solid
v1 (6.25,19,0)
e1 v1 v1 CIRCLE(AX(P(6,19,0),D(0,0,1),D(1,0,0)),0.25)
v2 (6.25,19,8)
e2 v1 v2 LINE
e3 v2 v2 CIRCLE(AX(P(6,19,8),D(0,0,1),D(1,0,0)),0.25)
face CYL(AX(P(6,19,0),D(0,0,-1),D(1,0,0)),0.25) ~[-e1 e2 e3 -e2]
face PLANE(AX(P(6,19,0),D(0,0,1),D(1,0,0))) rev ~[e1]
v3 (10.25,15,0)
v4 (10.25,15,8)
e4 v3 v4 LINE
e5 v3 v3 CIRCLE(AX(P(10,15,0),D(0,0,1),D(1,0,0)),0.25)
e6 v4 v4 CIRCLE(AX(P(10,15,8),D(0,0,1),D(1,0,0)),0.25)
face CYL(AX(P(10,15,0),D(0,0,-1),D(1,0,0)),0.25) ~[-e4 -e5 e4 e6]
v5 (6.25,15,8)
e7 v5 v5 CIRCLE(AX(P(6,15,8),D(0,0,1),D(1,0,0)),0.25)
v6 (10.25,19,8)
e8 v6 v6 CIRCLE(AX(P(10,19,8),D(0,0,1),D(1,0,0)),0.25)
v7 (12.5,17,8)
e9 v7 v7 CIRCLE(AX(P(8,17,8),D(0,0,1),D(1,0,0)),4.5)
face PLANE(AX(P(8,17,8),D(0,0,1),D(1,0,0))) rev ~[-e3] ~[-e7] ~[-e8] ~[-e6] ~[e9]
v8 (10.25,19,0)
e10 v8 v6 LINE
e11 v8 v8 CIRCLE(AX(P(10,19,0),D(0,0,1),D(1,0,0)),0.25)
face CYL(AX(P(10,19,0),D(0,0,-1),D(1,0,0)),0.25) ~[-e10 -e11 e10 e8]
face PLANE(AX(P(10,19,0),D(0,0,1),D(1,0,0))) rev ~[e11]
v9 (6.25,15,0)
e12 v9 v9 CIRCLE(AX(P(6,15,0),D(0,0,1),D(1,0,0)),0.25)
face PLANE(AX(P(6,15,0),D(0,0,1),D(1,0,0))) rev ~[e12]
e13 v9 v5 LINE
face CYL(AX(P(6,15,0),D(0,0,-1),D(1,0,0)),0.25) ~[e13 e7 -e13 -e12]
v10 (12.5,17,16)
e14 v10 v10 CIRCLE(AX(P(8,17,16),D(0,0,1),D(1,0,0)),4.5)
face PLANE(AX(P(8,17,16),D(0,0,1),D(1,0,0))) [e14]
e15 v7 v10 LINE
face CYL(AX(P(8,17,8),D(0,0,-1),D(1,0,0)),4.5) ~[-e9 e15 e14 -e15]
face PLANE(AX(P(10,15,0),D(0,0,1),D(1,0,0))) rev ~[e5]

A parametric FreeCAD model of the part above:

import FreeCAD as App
import Part
import Sketcher

V = App.Vector
Q = App.Units.Quantity

doc = App.newDocument("Part")
body = doc.addObject("PartDesign::Body", "Body")

sketch1 = doc.addObject("Sketcher::SketchObject", "Sketch")
body.addObject(sketch1)
sketch1.AttachmentSupport = (doc.XY_Plane, [""])
sketch1.MapMode = "FlatFace"
sketch1.addGeometry(Part.Circle(V(6, 15, 0), V(0, 0, 1), 0.25), False)
sketch1.addConstraint([
    Sketcher.Constraint("Diameter", 0, Q("0.5 mm")),
    Sketcher.Constraint("DistanceX", -1, 1, 0, 3, Q("6 mm")),
    Sketcher.Constraint("DistanceY", -1, 1, 0, 3, Q("15 mm")),
])
pad1 = doc.addObject("PartDesign::Pad", "Pad")
body.addObject(pad1)
pad1.Profile = sketch1
pad1.Length = 8
body2 = doc.addObject("PartDesign::Body", "Body001")

sketch2 = doc.addObject("Sketcher::SketchObject", "Sketch001")
body2.addObject(sketch2)
sketch2.AttachmentSupport = (doc.getObject("XY_Plane001"), [""])
sketch2.MapMode = "FlatFace"
sketch2.addGeometry(Part.Circle(V(6, 19, 0), V(0, 0, 1), 0.25), False)
sketch2.addConstraint([
    Sketcher.Constraint("Diameter", 0, Q("0.5 mm")),
    Sketcher.Constraint("DistanceX", -1, 1, 0, 3, Q("6 mm")),
    Sketcher.Constraint("DistanceY", -1, 1, 0, 3, Q("19 mm")),
])
pad2 = doc.addObject("PartDesign::Pad", "Pad001")
body2.addObject(pad2)
pad2.Profile = sketch2
pad2.Length = 8
body3 = doc.addObject("PartDesign::Body", "Body002")

sketch3 = doc.addObject("Sketcher::SketchObject", "Sketch002")
body3.addObject(sketch3)
sketch3.AttachmentSupport = (doc.getObject("XY_Plane002"), [""])
sketch3.MapMode = "FlatFace"
sketch3.addGeometry(Part.Circle(V(10, 19, 0), V(0, 0, 1), 0.25), False)
sketch3.addConstraint([
    Sketcher.Constraint("Diameter", 0, Q("0.5 mm")),
    Sketcher.Constraint("DistanceX", -1, 1, 0, 3, Q("10 mm")),
    Sketcher.Constraint("DistanceY", -1, 1, 0, 3, Q("19 mm")),
])
pad3 = doc.addObject("PartDesign::Pad", "Pad002")
body3.addObject(pad3)
pad3.Profile = sketch3
pad3.Length = 8
body4 = doc.addObject("PartDesign::Body", "Body003")

sketch4 = doc.addObject("Sketcher::SketchObject", "Sketch003")
body4.addObject(sketch4)
sketch4.AttachmentSupport = (doc.getObject("XY_Plane003"), [""])
sketch4.MapMode = "FlatFace"
sketch4.addGeometry(Part.Circle(V(10, 15, 0), V(0, 0, 1), 0.25), False)
sketch4.addConstraint([
    Sketcher.Constraint("Diameter", 0, Q("0.5 mm")),
    Sketcher.Constraint("DistanceX", -1, 1, 0, 3, Q("10 mm")),
    Sketcher.Constraint("DistanceY", -1, 1, 0, 3, Q("15 mm")),
])
pad4 = doc.addObject("PartDesign::Pad", "Pad003")
body4.addObject(pad4)
pad4.Profile = sketch4
pad4.Length = 8
body5 = doc.addObject("PartDesign::Body", "Body004")

sketch5 = doc.addObject("Sketcher::SketchObject", "Sketch004")
body5.addObject(sketch5)
sketch5.AttachmentSupport = (doc.getObject("XY_Plane004"), [""])
sketch5.MapMode = "FlatFace"
sketch5.AttachmentOffset = App.Placement(V(0, 0, 8), App.Rotation())
sketch5.addGeometry(Part.Circle(V(8, 17, 0), V(0, 0, 1), 4.5), False)
sketch5.addConstraint([
    Sketcher.Constraint("Diameter", 0, Q("9 mm")),
    Sketcher.Constraint("DistanceX", -1, 1, 0, 3, Q("8 mm")),
    Sketcher.Constraint("DistanceY", -1, 1, 0, 3, Q("17 mm")),
])
pad5 = doc.addObject("PartDesign::Pad", "Pad004")
body5.addObject(pad5)
pad5.Profile = sketch5
pad5.Length = 8
doc.recompute()

boolean = doc.addObject("PartDesign::Boolean", "Boolean")
body5.addObject(boolean)
boolean.Type = "Fuse"
boolean.addObjects([body])
doc.recompute()

boolean2 = doc.addObject("PartDesign::Boolean", "Boolean001")
body5.addObject(boolean2)
boolean2.Type = "Fuse"
boolean2.addObjects([body2])
doc.recompute()

boolean3 = doc.addObject("PartDesign::Boolean", "Boolean002")
body5.addObject(boolean3)
boolean3.Type = "Fuse"
boolean3.addObjects([body3])
doc.recompute()

boolean4 = doc.addObject("PartDesign::Boolean", "Boolean003")
body5.addObject(boolean4)
boolean4.Type = "Fuse"
boolean4.addObjects([body4])

doc.recompute()
